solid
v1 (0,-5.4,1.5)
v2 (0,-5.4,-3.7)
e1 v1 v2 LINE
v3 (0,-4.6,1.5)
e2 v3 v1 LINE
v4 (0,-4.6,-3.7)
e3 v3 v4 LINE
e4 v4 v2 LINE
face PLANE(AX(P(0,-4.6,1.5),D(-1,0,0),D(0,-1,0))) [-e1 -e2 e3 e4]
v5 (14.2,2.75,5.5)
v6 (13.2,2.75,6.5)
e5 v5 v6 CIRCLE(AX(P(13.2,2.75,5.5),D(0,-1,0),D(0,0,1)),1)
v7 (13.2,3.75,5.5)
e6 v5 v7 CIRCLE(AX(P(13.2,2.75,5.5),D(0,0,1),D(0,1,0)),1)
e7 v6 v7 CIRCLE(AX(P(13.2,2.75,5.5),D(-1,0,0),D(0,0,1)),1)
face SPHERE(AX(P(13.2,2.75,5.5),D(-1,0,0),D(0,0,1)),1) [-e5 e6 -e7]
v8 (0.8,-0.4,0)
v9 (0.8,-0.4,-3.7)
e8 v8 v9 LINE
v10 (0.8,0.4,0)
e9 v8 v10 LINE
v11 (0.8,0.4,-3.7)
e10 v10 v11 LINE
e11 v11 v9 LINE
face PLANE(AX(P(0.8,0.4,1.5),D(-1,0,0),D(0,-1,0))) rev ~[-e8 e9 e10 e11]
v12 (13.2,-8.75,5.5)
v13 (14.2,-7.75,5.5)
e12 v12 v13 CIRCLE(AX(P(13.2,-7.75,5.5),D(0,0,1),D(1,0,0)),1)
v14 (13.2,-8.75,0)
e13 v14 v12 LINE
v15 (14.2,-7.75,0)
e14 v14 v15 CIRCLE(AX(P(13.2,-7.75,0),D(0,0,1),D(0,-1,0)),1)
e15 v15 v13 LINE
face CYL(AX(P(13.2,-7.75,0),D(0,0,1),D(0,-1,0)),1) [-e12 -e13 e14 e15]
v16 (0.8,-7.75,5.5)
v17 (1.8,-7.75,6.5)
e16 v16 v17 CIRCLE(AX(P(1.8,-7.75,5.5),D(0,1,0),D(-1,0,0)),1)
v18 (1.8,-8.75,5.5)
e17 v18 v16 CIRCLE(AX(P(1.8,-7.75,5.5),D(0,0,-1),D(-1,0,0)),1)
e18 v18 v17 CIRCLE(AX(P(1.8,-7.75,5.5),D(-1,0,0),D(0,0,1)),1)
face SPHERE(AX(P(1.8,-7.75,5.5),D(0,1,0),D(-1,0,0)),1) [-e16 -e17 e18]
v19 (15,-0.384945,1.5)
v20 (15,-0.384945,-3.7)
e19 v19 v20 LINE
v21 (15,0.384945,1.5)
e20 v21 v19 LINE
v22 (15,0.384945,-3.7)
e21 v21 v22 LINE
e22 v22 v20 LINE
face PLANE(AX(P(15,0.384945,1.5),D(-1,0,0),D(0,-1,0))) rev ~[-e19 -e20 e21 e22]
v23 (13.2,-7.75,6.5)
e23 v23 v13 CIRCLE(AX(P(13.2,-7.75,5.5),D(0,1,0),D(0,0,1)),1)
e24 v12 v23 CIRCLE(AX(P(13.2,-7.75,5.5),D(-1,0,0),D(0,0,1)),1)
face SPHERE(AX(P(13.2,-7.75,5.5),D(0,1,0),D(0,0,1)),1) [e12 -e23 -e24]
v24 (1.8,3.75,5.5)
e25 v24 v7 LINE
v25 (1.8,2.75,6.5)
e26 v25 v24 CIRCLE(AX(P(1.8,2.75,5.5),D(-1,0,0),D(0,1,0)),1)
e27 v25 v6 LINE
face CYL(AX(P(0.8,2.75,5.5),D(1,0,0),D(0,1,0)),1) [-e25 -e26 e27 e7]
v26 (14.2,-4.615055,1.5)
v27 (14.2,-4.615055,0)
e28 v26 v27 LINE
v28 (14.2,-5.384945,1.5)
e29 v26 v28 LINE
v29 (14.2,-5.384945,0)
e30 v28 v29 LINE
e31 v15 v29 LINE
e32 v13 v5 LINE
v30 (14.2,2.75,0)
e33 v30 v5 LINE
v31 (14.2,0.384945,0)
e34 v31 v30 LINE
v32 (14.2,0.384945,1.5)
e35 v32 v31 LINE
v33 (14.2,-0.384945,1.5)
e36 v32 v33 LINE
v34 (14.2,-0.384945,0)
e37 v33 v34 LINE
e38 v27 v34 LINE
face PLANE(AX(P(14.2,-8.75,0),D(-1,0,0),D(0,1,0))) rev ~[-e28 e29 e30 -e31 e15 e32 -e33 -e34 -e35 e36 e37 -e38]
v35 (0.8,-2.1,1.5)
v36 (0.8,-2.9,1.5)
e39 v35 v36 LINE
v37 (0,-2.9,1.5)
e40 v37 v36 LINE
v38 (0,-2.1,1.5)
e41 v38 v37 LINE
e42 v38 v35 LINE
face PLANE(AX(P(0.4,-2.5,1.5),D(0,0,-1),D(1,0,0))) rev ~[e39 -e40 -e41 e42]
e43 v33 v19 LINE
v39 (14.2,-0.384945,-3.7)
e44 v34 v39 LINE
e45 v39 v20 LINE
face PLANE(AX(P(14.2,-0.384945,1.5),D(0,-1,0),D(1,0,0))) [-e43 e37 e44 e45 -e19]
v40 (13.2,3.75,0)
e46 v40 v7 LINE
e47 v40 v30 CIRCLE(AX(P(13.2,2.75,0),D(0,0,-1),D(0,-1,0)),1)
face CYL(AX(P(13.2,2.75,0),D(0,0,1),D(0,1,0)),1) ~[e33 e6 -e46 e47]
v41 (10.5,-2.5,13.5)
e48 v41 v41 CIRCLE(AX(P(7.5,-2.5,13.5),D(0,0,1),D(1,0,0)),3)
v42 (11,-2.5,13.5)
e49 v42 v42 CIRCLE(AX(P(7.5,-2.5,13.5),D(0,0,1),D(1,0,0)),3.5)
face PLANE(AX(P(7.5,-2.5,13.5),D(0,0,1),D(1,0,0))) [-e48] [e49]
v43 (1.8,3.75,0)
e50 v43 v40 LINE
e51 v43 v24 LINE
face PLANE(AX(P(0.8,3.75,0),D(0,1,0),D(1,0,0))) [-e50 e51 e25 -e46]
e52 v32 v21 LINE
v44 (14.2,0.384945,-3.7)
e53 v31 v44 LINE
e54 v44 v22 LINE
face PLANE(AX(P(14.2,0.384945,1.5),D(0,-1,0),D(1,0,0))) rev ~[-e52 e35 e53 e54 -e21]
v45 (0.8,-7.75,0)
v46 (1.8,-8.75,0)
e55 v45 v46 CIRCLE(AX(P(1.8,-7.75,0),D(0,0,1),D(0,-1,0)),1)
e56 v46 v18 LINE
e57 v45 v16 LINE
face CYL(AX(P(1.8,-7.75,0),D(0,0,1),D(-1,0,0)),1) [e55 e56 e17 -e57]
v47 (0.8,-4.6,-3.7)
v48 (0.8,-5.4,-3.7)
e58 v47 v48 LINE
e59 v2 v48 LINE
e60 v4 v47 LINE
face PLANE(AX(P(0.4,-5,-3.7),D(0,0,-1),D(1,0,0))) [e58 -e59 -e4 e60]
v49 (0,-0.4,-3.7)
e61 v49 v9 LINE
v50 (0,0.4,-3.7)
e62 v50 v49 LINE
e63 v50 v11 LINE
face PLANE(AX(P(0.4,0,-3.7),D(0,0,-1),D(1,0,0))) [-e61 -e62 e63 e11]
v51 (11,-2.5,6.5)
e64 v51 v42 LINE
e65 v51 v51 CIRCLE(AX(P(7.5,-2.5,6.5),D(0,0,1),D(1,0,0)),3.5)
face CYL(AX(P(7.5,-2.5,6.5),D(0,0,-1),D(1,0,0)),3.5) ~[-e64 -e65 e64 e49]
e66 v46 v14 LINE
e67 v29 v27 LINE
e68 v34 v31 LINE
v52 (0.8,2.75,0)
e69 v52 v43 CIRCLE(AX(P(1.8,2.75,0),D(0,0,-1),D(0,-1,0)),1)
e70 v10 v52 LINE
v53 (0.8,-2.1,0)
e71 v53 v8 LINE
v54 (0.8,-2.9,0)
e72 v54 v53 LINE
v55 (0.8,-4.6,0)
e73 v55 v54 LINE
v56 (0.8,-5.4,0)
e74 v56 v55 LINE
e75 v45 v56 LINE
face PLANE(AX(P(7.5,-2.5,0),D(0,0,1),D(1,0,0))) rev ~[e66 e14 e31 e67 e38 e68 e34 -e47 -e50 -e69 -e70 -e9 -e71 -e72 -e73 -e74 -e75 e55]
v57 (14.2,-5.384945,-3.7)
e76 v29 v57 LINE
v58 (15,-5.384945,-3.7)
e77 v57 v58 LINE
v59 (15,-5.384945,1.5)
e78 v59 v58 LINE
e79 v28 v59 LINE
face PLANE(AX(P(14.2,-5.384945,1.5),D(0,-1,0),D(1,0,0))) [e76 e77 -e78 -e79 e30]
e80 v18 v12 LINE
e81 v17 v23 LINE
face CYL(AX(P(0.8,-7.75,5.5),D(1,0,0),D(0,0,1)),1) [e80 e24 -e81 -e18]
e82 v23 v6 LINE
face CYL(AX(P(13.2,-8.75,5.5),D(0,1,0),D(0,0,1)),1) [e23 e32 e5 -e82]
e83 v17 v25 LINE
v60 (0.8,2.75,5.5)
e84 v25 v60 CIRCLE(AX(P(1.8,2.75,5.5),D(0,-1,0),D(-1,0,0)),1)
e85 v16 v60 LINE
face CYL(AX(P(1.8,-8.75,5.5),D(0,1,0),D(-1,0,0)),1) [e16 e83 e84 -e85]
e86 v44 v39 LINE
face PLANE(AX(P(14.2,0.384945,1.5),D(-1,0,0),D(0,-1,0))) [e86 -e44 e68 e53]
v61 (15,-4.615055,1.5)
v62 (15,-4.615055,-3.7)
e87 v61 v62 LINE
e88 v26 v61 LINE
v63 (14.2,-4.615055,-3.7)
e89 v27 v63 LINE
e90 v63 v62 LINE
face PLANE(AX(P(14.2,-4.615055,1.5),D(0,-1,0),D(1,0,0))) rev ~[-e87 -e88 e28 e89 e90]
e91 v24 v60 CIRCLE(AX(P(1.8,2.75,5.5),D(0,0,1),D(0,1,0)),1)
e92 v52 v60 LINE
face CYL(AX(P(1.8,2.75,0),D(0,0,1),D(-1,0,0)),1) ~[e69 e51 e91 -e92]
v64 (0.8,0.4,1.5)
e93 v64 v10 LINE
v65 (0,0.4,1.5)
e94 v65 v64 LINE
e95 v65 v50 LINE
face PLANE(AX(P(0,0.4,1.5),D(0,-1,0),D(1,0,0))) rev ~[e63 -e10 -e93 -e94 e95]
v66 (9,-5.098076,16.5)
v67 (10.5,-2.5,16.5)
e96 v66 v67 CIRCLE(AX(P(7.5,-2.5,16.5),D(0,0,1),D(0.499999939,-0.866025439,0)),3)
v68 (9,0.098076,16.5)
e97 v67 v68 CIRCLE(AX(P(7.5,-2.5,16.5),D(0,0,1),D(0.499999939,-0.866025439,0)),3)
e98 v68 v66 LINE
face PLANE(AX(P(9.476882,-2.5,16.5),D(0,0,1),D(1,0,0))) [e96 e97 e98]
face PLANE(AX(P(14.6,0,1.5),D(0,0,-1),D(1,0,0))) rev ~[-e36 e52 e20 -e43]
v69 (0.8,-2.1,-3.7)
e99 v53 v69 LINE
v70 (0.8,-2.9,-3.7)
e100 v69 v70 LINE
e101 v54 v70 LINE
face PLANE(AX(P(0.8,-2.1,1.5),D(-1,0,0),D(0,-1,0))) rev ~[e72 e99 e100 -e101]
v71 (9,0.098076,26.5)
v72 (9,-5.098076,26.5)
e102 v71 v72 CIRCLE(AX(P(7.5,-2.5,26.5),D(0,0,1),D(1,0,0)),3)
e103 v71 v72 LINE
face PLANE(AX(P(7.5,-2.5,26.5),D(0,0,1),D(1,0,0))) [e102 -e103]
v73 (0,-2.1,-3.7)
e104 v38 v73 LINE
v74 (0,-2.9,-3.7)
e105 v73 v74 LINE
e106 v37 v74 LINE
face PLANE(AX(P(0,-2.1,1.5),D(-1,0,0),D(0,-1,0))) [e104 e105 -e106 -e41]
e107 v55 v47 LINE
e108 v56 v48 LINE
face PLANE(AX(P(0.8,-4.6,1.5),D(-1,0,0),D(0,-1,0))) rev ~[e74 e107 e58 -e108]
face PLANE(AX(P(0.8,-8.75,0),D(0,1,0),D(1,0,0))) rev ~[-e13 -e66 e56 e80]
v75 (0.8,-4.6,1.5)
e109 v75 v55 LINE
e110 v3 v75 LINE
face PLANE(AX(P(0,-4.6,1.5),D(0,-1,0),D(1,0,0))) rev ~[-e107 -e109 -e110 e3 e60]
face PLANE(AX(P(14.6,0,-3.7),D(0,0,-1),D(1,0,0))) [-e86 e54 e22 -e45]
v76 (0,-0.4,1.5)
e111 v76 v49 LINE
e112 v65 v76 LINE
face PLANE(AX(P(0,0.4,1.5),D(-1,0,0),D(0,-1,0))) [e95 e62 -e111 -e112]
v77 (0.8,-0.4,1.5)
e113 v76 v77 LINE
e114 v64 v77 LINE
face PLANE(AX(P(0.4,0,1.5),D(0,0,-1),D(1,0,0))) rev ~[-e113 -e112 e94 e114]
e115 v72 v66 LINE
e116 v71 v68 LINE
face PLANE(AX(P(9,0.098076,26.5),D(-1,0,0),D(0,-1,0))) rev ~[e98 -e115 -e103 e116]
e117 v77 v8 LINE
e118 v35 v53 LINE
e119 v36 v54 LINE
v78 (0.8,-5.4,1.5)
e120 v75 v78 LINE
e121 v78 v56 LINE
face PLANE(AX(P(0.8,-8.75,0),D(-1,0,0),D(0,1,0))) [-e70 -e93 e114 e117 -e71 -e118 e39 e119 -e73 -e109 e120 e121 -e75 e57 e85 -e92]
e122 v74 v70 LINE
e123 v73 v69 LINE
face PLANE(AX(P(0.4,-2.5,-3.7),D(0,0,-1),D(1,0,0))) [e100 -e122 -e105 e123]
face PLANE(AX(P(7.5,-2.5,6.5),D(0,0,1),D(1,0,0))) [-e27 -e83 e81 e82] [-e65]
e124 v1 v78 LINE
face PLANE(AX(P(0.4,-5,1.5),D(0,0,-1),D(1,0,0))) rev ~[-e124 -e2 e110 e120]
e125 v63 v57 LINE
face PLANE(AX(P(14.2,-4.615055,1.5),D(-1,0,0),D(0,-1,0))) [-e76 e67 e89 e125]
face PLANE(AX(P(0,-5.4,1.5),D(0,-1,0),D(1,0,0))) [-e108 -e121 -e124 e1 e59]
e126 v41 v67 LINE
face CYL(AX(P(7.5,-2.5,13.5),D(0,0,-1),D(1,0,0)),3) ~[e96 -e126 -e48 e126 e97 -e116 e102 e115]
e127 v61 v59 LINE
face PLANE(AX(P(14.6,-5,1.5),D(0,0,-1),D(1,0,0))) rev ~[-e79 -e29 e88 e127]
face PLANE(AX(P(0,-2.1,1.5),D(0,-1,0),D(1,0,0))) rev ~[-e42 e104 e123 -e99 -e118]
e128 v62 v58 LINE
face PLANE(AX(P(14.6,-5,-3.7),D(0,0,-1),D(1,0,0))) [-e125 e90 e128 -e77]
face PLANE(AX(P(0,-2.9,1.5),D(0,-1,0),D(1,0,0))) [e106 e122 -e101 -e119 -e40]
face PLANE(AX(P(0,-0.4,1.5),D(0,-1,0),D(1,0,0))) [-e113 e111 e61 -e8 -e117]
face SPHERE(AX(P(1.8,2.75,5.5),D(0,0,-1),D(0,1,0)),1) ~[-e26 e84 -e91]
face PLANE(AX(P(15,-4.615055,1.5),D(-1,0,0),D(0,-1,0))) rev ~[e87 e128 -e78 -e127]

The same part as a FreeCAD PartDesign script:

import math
import FreeCAD as App
import Part
import Sketcher
Q = App.Units.Quantity


def edges_at(feature, points):
    """Names of the edges that pass closest to the given points."""
    edges = feature.Shape.Edges
    near = lambda p: min(range(len(edges)), key=lambda i: edges[i].distToShape(Part.Vertex(*p))[0])
    return sorted({f"Edge{near(p) + 1}" for p in points})

doc = App.newDocument("Part")
params = doc.addObject("Spreadsheet::Sheet", "Params")
for row, (alias, value) in enumerate([
    ("sketch1_width", "13.4 mm"),
    ("sketch1_height", "12.5 mm"),
    ("pad1_length", "6.5 mm"),
    ("sketch2_width", "0.8 mm"),
    ("pad2_length", "5.2 mm"),
    ("sketch3_diameter", "7 mm"),
    ("pad3_length", "7 mm"),
    ("sketch4_diameter", "6 mm"),
    ("pad4_length", "13 mm"),
    ("sketch5_radius", "3 mm"),
    ("pocket1_length", "10 mm"),
    ("fillet_radius", "1 mm"),
], start=1):
    params.set(f"A{row}", alias)
    params.set(f"B{row}", "=" + value)
    params.setAlias(f"B{row}", alias)

body = doc.addObject("PartDesign::Body", "Body")

sketch1 = doc.addObject("Sketcher::SketchObject", "Sketch")
body.addObject(sketch1)
sketch1.AttachmentSupport = (doc.XY_Plane, [""])
sketch1.MapMode = "FlatFace"
sketch1.addGeometry(Part.LineSegment(App.Vector(1, 4, 0), App.Vector(1, -9, 0)), False)
sketch1.addGeometry(Part.LineSegment(App.Vector(1, -9, 0), App.Vector(14, -9, 0)), False)
sketch1.addGeometry(Part.LineSegment(App.Vector(14, -9, 0), App.Vector(14, 4, 0)), False)
sketch1.addGeometry(Part.LineSegment(App.Vector(14, 4, 0), App.Vector(1, 4, 0)), False)
sketch1.addConstraint(Sketcher.Constraint("Coincident", 0, 2, 1, 1))
sketch1.addConstraint(Sketcher.Constraint("Coincident", 1, 2, 2, 1))
sketch1.addConstraint(Sketcher.Constraint("Coincident", 2, 2, 3, 1))
sketch1.addConstraint(Sketcher.Constraint("Coincident", 3, 2, 0, 1))
sketch1.addConstraint(Sketcher.Constraint("Vertical", 0))
sketch1.addConstraint(Sketcher.Constraint("Horizontal", 1))
sketch1.addConstraint(Sketcher.Constraint("Vertical", 2))
sketch1.addConstraint(Sketcher.Constraint("Horizontal", 3))
sketch1.addConstraint(Sketcher.Constraint("DistanceX", 1, 1, 1, 2, Q("13.4 mm")))
sketch1.addConstraint(Sketcher.Constraint("DistanceY", 0, 2, 0, 1, Q("12.5 mm")))
sketch1.addConstraint(Sketcher.Constraint("DistanceX", -1, 1, 0, 2, Q("0.8 mm")))
sketch1.addConstraint(Sketcher.Constraint("DistanceY", 0, 2, -1, 1, Q("8.75 mm")))
sketch1.setExpression("Constraints[8]", "Params.sketch1_width")
sketch1.setExpression("Constraints[9]", "Params.sketch1_height")
pad1 = doc.addObject("PartDesign::Pad", "Pad")
body.addObject(pad1)
pad1.Profile = sketch1
pad1.setExpression("Length", "Params.pad1_length")

sketch2 = doc.addObject("Sketcher::SketchObject", "Sketch001")
body.addObject(sketch2)
sketch2.AttachmentSupport = (doc.XY_Plane, [""])
sketch2.MapMode = "FlatFace"
sketch2.AttachmentOffset = App.Placement(App.Vector(0, 0, 1.5), App.Rotation())
sketch2.addGeometry(Part.LineSegment(App.Vector(0, -5.4, 0), App.Vector(0, -4.6, 0)), False)
sketch2.addGeometry(Part.LineSegment(App.Vector(0, -4.6, 0), App.Vector(0.8, -4.6, 0)), False)
sketch2.addGeometry(Part.LineSegment(App.Vector(0.8, -4.6, 0), App.Vector(0.8, -5.4, 0)), False)
sketch2.addGeometry(Part.LineSegment(App.Vector(0.8, -5.4, 0), App.Vector(0, -5.4, 0)), False)
sketch2.addGeometry(Part.LineSegment(App.Vector(0, -2.9, 0), App.Vector(0, -2.1, 0)), False)
sketch2.addGeometry(Part.LineSegment(App.Vector(0, -2.1, 0), App.Vector(0.8, -2.1, 0)), False)
sketch2.addGeometry(Part.LineSegment(App.Vector(0.8, -2.1, 0), App.Vector(0.8, -2.9, 0)), False)
sketch2.addGeometry(Part.LineSegment(App.Vector(0.8, -2.9, 0), App.Vector(0, -2.9, 0)), False)
sketch2.addGeometry(Part.LineSegment(App.Vector(0, -0.4, 0), App.Vector(0, 0.4, 0)), False)
sketch2.addGeometry(Part.LineSegment(App.Vector(0, 0.4, 0), App.Vector(0.8, 0.4, 0)), False)
sketch2.addGeometry(Part.LineSegment(App.Vector(0.8, 0.4, 0), App.Vector(0.8, -0.4, 0)), False)
sketch2.addGeometry(Part.LineSegment(App.Vector(0.8, -0.4, 0), App.Vector(0, -0.4, 0)), False)
sketch2.addGeometry(Part.LineSegment(App.Vector(14.2, -5.4, 0), App.Vector(14.2, -4.6, 0)), False)
sketch2.addGeometry(Part.LineSegment(App.Vector(14.2, -4.6, 0), App.Vector(15, -4.6, 0)), False)
sketch2.addGeometry(Part.LineSegment(App.Vector(15, -4.6, 0), App.Vector(15, -5.4, 0)), False)
sketch2.addGeometry(Part.LineSegment(App.Vector(15, -5.4, 0), App.Vector(14.2, -5.4, 0)), False)
sketch2.addGeometry(Part.LineSegment(App.Vector(14.2, -0.4, 0), App.Vector(14.2, 0.4, 0)), False)
sketch2.addGeometry(Part.LineSegment(App.Vector(14.2, 0.4, 0), App.Vector(15, 0.4, 0)), False)
sketch2.addGeometry(Part.LineSegment(App.Vector(15, 0.4, 0), App.Vector(15, -0.4, 0)), False)
sketch2.addGeometry(Part.LineSegment(App.Vector(15, -0.4, 0), App.Vector(14.2, -0.4, 0)), False)
sketch2.addConstraint(Sketcher.Constraint("Coincident", 0, 2, 1, 1))
sketch2.addConstraint(Sketcher.Constraint("Coincident", 1, 2, 2, 1))
sketch2.addConstraint(Sketcher.Constraint("Coincident", 2, 2, 3, 1))
sketch2.addConstraint(Sketcher.Constraint("Coincident", 3, 2, 0, 1))
sketch2.addConstraint(Sketcher.Constraint("Coincident", 4, 2, 5, 1))
sketch2.addConstraint(Sketcher.Constraint("Coincident", 5, 2, 6, 1))
sketch2.addConstraint(Sketcher.Constraint("Coincident", 6, 2, 7, 1))
sketch2.addConstraint(Sketcher.Constraint("Coincident", 7, 2, 4, 1))
sketch2.addConstraint(Sketcher.Constraint("Coincident", 8, 2, 9, 1))
sketch2.addConstraint(Sketcher.Constraint("Coincident", 9, 2, 10, 1))
sketch2.addConstraint(Sketcher.Constraint("Coincident", 10, 2, 11, 1))
sketch2.addConstraint(Sketcher.Constraint("Coincident", 11, 2, 8, 1))
sketch2.addConstraint(Sketcher.Constraint("Coincident", 12, 2, 13, 1))
sketch2.addConstraint(Sketcher.Constraint("Coincident", 13, 2, 14, 1))
sketch2.addConstraint(Sketcher.Constraint("Coincident", 14, 2, 15, 1))
sketch2.addConstraint(Sketcher.Constraint("Coincident", 15, 2, 12, 1))
sketch2.addConstraint(Sketcher.Constraint("Coincident", 16, 2, 17, 1))
sketch2.addConstraint(Sketcher.Constraint("Coincident", 17, 2, 18, 1))
sketch2.addConstraint(Sketcher.Constraint("Coincident", 18, 2, 19, 1))
sketch2.addConstraint(Sketcher.Constraint("Coincident", 19, 2, 16, 1))
sketch2.addConstraint(Sketcher.Constraint("Vertical", 0))
sketch2.addConstraint(Sketcher.Constraint("Horizontal", 1))
sketch2.addConstraint(Sketcher.Constraint("Vertical", 2))
sketch2.addConstraint(Sketcher.Constraint("Horizontal", 3))
sketch2.addConstraint(Sketcher.Constraint("Vertical", 4))
sketch2.addConstraint(Sketcher.Constraint("Horizontal", 5))
sketch2.addConstraint(Sketcher.Constraint("Vertical", 6))
sketch2.addConstraint(Sketcher.Constraint("Horizontal", 7))
sketch2.addConstraint(Sketcher.Constraint("Vertical", 8))
sketch2.addConstraint(Sketcher.Constraint("Horizontal", 9))
sketch2.addConstraint(Sketcher.Constraint("Vertical", 10))
sketch2.addConstraint(Sketcher.Constraint("Horizontal", 11))
sketch2.addConstraint(Sketcher.Constraint("Vertical", 12))
sketch2.addConstraint(Sketcher.Constraint("Horizontal", 13))
sketch2.addConstraint(Sketcher.Constraint("Vertical", 14))
sketch2.addConstraint(Sketcher.Constraint("Horizontal", 15))
sketch2.addConstraint(Sketcher.Constraint("Vertical", 16))
sketch2.addConstraint(Sketcher.Constraint("Horizontal", 17))
sketch2.addConstraint(Sketcher.Constraint("Vertical", 18))
sketch2.addConstraint(Sketcher.Constraint("Horizontal", 19))
sketch2.addConstraint(Sketcher.Constraint("Symmetric", 8, 2, 11, 2, -1, 1))
sketch2.addConstraint(Sketcher.Constraint("PointOnObject", 0, 2, -2))
sketch2.addConstraint(Sketcher.Constraint("PointOnObject", 4, 2, -2))
sketch2.addConstraint(Sketcher.Constraint("Vertical", 2, 2, 5, 2))
sketch2.addConstraint(Sketcher.Constraint("Vertical", 6, 2, 9, 2))
sketch2.addConstraint(Sketcher.Constraint("Vertical", 15, 2, 16, 2))
sketch2.addConstraint(Sketcher.Constraint("Vertical", 14, 2, 17, 2))
sketch2.addConstraint(Sketcher.Constraint("Equal", 11, 13))
sketch2.addConstraint(Sketcher.Constraint("Equal", 19, 0))
sketch2.addConstraint(Sketcher.Constraint("Equal", 2, 4))
sketch2.addConstraint(Sketcher.Constraint("Equal", 6, 8))
sketch2.addConstraint(Sketcher.Constraint("Equal", 14, 16))
sketch2.addConstraint(Sketcher.Constraint("DistanceX", 1, 1, 1, 2, Q("0.8 mm")))
sketch2.addConstraint(Sketcher.Constraint("DistanceX", -1, 1, 13, 2, Q("15 mm")))
sketch2.addConstraint(Sketcher.Constraint("DistanceY", 0, 2, 8, 2, Q("5 mm")))
sketch2.addConstraint(Sketcher.Constraint("DistanceY", 12, 2, 16, 2, Q("5 mm")))
sketch2.addConstraint(Sketcher.Constraint("DistanceY", 4, 2, -1, 1, Q("2.1 mm")))
sketch2.addConstraint(Sketcher.Constraint("DistanceY", 12, 1, 12, 2, Q("0.76989 mm")))
sketch2.addConstraint(Sketcher.Constraint("DistanceY", 12, 2, -1, 1, Q("4.615055 mm")))
sketch2.setExpression("Constraints[52]", "Params.sketch2_width")
pad2 = doc.addObject("PartDesign::Pad", "Pad001")
body.addObject(pad2)
pad2.Profile = sketch2
pad2.setExpression("Length", "Params.pad2_length")
pad2.Reversed = True

sketch3 = doc.addObject("Sketcher::SketchObject", "Sketch002")
body.addObject(sketch3)
sketch3.AttachmentSupport = (doc.XY_Plane, [""])
sketch3.MapMode = "FlatFace"
sketch3.AttachmentOffset = App.Placement(App.Vector(0, 0, 6.5), App.Rotation())
sketch3.addGeometry(Part.Circle(App.Vector(7.5, -2.5, 0), App.Vector(0, 0, 1), 3.5), False)
sketch3.addConstraint(Sketcher.Constraint("Diameter", 0, Q("7 mm")))
sketch3.addConstraint(Sketcher.Constraint("DistanceX", -1, 1, 0, 3, Q("7.5 mm")))
sketch3.addConstraint(Sketcher.Constraint("DistanceY", 0, 3, -1, 1, Q("2.5 mm")))
sketch3.setExpression("Constraints[0]", "Params.sketch3_diameter")
pad3 = doc.addObject("PartDesign::Pad", "Pad002")
body.addObject(pad3)
pad3.Profile = sketch3
pad3.setExpression("Length", "Params.pad3_length")

sketch4 = doc.addObject("Sketcher::SketchObject", "Sketch003")
body.addObject(sketch4)
sketch4.AttachmentSupport = (doc.XY_Plane, [""])
sketch4.MapMode = "FlatFace"
sketch4.AttachmentOffset = App.Placement(App.Vector(0, 0, 13.5), App.Rotation())
sketch4.addGeometry(Part.Circle(App.Vector(7.5, -2.5, 0), App.Vector(0, 0, 1), 3), False)
sketch4.addConstraint(Sketcher.Constraint("Diameter", 0, Q("6 mm")))
sketch4.addConstraint(Sketcher.Constraint("DistanceX", -1, 1, 0, 3, Q("7.5 mm")))
sketch4.addConstraint(Sketcher.Constraint("DistanceY", 0, 3, -1, 1, Q("2.5 mm")))
sketch4.setExpression("Constraints[0]", "Params.sketch4_diameter")
pad4 = doc.addObject("PartDesign::Pad", "Pad003")
body.addObject(pad4)
pad4.Profile = sketch4
pad4.setExpression("Length", "Params.pad4_length")

sketch5 = doc.addObject("Sketcher::SketchObject", "Sketch004")
body.addObject(sketch5)
sketch5.AttachmentSupport = (doc.XY_Plane, [""])
sketch5.MapMode = "FlatFace"
sketch5.AttachmentOffset = App.Placement(App.Vector(0, 0, 26.5), App.Rotation())
sketch5.addGeometry(Part.LineSegment(App.Vector(9, 0.1, 0), App.Vector(9, -5.1, 0)), False)
sketch5.addGeometry(Part.ArcOfCircle(Part.Circle(App.Vector(7.5, -2.5, 0), App.Vector(0, 0, 1), 3), math.radians(-60), math.radians(60)), False)
sketch5.addConstraint(Sketcher.Constraint("Coincident", 0, 1, 1, 2))
sketch5.addConstraint(Sketcher.Constraint("Coincident", 1, 1, 0, 2))
sketch5.addConstraint(Sketcher.Constraint("Vertical", 0))
sketch5.addConstraint(Sketcher.Constraint("Radius", 1, Q("3 mm")))
sketch5.addConstraint(Sketcher.Constraint("DistanceX", -1, 1, 0, 1, Q("9 mm")))
sketch5.addConstraint(Sketcher.Constraint("DistanceX", -1, 1, 1, 3, Q("7.5 mm")))
sketch5.addConstraint(Sketcher.Constraint("DistanceY", 1, 3, -1, 1, Q("2.5 mm")))
sketch5.setExpression("Constraints[3]", "Params.sketch5_radius")
pocket1 = doc.addObject("PartDesign::Pocket", "Pocket")
body.addObject(pocket1)
pocket1.Profile = sketch5
pocket1.setExpression("Length", "Params.pocket1_length")
doc.recompute()

fillet = doc.addObject("PartDesign::Fillet", "Fillet")
body.addObject(fillet)
fillet.Base = (pocket1, edges_at(pocket1, [
    (0.8, 3.75, 3.25),
    (7.5, 3.75, 6.5),
    (0.8, -2.5, 6.5),
    (14.2, -2.5, 6.5),
    (14.2, 3.75, 3.25),
    (0.8, -8.75, 3.25),
    (7.5, -8.75, 6.5),
    (14.2, -8.75, 3.25),
]))
fillet.setExpression("Radius", "Params.fillet_radius")

doc.recompute()
